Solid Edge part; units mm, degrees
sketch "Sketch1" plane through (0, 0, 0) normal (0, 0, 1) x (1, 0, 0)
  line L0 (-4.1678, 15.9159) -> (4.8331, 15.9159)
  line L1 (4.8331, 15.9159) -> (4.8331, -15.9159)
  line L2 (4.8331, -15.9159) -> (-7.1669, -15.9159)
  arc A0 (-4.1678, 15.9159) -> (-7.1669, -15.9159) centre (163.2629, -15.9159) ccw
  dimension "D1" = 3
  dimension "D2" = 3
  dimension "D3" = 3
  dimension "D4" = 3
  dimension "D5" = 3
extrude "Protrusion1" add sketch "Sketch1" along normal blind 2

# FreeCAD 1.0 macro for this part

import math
import FreeCAD as App
import Part
import Sketcher
from FreeCAD import Vector
Q = App.Units.Quantity

doc = App.newDocument("Part")
body = doc.addObject("PartDesign::Body", "Body")

sketch1 = body.newObject("Sketcher::SketchObject", "Sketch")
sketch1.AttachmentSupport = (doc.getObject("XY_Plane"), [""])
sketch1.MapMode = "FlatFace"
sketch1.addGeometry([
    Part.LineSegment(Vector(5, 16, 0), Vector(-4, 16, 0)),
    Part.ArcOfCircle(Part.Circle(Vector(163, -16, 0), Vector(0, 0, 1), 170), math.radians(169.24), math.radians(180)),
    Part.LineSegment(Vector(-7, -16, 0), Vector(5, -16, 0)),
    Part.LineSegment(Vector(5, -16, 0), Vector(5, 16, 0)),
], False)
sketch1.addConstraint([
    Sketcher.Constraint("Coincident", 0, 2, 1, 1),
    Sketcher.Constraint("Coincident", 1, 2, 2, 1),
    Sketcher.Constraint("Coincident", 2, 2, 3, 1),
    Sketcher.Constraint("Coincident", 3, 2, 0, 1),
    Sketcher.Constraint("Horizontal", 0),
    Sketcher.Constraint("Horizontal", 2),
    Sketcher.Constraint("Vertical", 3),
    Sketcher.Constraint("DistanceX", 2, 1, 2, 2, Q("12 mm")),
    Sketcher.Constraint("DistanceX", 0, 2, -1, 1, Q("4.1678 mm")),
    Sketcher.Constraint("Radius", 1, Q("170.4344 mm")),
    Sketcher.Constraint("DistanceX", 0, 2, 0, 1, Q("9.001 mm")),
    Sketcher.Constraint("DistanceY", 3, 1, 3, 2, Q("31.8318 mm")),
    Sketcher.Constraint("DistanceY", -1, 1, 0, 2, Q("15.916 mm")),
])
pad1 = body.newObject("PartDesign::Pad", "Pad")
pad1.Profile = sketch1
pad1.Length = 2

doc.recompute()
